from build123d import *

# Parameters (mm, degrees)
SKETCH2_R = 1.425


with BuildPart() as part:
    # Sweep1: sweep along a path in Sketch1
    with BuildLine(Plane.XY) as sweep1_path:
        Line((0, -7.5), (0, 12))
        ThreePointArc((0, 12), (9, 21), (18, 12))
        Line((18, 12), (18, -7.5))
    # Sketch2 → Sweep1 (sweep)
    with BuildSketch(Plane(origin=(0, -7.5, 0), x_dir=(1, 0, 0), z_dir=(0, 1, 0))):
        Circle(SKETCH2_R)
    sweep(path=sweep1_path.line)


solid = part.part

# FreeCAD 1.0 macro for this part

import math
import FreeCAD as App
import Part
import Sketcher
Q = App.Units.Quantity

doc = App.newDocument("Part")
body = doc.addObject("PartDesign::Body", "Body")

sketch1 = doc.addObject("Sketcher::SketchObject", "Sketch")
body.addObject(sketch1)
sketch1.AttachmentSupport = (doc.XZ_Plane, [""])
sketch1.MapMode = "FlatFace"
sketch1.AttachmentOffset = App.Placement(App.Vector(0, 0, 7.5), App.Rotation())
sketch1.addGeometry(Part.Circle(App.Vector(0, 0, 0), App.Vector(0, 0, 1), 1.4), False)
sketch1.addConstraint([
    Sketcher.Constraint("Coincident", 0, 3, -1, 1),
    Sketcher.Constraint("Diameter", 0, Q("2.85 mm")),
])

sketch2 = doc.addObject("Sketcher::SketchObject", "Sketch001")
body.addObject(sketch2)
sketch2.AttachmentSupport = (doc.XY_Plane, [""])
sketch2.MapMode = "FlatFace"
sketch2.addGeometry([
    Part.LineSegment(App.Vector(0, -8, 0), App.Vector(0, 12, 0)),
    Part.ArcOfCircle(Part.Circle(App.Vector(9, 12, 0), App.Vector(0, 0, 1), 9), math.radians(0), math.radians(180)),
    Part.LineSegment(App.Vector(18, 12, 0), App.Vector(18, -8, 0)),
], False)
sketch2.addConstraint([
    Sketcher.Constraint("Tangent", 0, 2, 1, 2),
    Sketcher.Constraint("Tangent", 1, 1, 2, 1),
    Sketcher.Constraint("Vertical", 0),
    Sketcher.Constraint("Vertical", 2),
    Sketcher.Constraint("PointOnObject", 0, 1, -2),
    Sketcher.Constraint("Horizontal", 0, 1, 2, 2),
    Sketcher.Constraint("Radius", 1, Q("9 mm")),
    Sketcher.Constraint("DistanceY", 0, 1, 0, 2, Q("19.5 mm")),
    Sketcher.Constraint("DistanceY", -1, 1, 1, 3, Q("12 mm")),
])
doc.recompute()

additivepipe = doc.addObject("PartDesign::AdditivePipe", "AdditivePipe")
body.addObject(additivepipe)
additivepipe.Profile = sketch1
additivepipe.Spine = (sketch2, ["Edge1", "Edge2", "Edge3"])

doc.recompute()
